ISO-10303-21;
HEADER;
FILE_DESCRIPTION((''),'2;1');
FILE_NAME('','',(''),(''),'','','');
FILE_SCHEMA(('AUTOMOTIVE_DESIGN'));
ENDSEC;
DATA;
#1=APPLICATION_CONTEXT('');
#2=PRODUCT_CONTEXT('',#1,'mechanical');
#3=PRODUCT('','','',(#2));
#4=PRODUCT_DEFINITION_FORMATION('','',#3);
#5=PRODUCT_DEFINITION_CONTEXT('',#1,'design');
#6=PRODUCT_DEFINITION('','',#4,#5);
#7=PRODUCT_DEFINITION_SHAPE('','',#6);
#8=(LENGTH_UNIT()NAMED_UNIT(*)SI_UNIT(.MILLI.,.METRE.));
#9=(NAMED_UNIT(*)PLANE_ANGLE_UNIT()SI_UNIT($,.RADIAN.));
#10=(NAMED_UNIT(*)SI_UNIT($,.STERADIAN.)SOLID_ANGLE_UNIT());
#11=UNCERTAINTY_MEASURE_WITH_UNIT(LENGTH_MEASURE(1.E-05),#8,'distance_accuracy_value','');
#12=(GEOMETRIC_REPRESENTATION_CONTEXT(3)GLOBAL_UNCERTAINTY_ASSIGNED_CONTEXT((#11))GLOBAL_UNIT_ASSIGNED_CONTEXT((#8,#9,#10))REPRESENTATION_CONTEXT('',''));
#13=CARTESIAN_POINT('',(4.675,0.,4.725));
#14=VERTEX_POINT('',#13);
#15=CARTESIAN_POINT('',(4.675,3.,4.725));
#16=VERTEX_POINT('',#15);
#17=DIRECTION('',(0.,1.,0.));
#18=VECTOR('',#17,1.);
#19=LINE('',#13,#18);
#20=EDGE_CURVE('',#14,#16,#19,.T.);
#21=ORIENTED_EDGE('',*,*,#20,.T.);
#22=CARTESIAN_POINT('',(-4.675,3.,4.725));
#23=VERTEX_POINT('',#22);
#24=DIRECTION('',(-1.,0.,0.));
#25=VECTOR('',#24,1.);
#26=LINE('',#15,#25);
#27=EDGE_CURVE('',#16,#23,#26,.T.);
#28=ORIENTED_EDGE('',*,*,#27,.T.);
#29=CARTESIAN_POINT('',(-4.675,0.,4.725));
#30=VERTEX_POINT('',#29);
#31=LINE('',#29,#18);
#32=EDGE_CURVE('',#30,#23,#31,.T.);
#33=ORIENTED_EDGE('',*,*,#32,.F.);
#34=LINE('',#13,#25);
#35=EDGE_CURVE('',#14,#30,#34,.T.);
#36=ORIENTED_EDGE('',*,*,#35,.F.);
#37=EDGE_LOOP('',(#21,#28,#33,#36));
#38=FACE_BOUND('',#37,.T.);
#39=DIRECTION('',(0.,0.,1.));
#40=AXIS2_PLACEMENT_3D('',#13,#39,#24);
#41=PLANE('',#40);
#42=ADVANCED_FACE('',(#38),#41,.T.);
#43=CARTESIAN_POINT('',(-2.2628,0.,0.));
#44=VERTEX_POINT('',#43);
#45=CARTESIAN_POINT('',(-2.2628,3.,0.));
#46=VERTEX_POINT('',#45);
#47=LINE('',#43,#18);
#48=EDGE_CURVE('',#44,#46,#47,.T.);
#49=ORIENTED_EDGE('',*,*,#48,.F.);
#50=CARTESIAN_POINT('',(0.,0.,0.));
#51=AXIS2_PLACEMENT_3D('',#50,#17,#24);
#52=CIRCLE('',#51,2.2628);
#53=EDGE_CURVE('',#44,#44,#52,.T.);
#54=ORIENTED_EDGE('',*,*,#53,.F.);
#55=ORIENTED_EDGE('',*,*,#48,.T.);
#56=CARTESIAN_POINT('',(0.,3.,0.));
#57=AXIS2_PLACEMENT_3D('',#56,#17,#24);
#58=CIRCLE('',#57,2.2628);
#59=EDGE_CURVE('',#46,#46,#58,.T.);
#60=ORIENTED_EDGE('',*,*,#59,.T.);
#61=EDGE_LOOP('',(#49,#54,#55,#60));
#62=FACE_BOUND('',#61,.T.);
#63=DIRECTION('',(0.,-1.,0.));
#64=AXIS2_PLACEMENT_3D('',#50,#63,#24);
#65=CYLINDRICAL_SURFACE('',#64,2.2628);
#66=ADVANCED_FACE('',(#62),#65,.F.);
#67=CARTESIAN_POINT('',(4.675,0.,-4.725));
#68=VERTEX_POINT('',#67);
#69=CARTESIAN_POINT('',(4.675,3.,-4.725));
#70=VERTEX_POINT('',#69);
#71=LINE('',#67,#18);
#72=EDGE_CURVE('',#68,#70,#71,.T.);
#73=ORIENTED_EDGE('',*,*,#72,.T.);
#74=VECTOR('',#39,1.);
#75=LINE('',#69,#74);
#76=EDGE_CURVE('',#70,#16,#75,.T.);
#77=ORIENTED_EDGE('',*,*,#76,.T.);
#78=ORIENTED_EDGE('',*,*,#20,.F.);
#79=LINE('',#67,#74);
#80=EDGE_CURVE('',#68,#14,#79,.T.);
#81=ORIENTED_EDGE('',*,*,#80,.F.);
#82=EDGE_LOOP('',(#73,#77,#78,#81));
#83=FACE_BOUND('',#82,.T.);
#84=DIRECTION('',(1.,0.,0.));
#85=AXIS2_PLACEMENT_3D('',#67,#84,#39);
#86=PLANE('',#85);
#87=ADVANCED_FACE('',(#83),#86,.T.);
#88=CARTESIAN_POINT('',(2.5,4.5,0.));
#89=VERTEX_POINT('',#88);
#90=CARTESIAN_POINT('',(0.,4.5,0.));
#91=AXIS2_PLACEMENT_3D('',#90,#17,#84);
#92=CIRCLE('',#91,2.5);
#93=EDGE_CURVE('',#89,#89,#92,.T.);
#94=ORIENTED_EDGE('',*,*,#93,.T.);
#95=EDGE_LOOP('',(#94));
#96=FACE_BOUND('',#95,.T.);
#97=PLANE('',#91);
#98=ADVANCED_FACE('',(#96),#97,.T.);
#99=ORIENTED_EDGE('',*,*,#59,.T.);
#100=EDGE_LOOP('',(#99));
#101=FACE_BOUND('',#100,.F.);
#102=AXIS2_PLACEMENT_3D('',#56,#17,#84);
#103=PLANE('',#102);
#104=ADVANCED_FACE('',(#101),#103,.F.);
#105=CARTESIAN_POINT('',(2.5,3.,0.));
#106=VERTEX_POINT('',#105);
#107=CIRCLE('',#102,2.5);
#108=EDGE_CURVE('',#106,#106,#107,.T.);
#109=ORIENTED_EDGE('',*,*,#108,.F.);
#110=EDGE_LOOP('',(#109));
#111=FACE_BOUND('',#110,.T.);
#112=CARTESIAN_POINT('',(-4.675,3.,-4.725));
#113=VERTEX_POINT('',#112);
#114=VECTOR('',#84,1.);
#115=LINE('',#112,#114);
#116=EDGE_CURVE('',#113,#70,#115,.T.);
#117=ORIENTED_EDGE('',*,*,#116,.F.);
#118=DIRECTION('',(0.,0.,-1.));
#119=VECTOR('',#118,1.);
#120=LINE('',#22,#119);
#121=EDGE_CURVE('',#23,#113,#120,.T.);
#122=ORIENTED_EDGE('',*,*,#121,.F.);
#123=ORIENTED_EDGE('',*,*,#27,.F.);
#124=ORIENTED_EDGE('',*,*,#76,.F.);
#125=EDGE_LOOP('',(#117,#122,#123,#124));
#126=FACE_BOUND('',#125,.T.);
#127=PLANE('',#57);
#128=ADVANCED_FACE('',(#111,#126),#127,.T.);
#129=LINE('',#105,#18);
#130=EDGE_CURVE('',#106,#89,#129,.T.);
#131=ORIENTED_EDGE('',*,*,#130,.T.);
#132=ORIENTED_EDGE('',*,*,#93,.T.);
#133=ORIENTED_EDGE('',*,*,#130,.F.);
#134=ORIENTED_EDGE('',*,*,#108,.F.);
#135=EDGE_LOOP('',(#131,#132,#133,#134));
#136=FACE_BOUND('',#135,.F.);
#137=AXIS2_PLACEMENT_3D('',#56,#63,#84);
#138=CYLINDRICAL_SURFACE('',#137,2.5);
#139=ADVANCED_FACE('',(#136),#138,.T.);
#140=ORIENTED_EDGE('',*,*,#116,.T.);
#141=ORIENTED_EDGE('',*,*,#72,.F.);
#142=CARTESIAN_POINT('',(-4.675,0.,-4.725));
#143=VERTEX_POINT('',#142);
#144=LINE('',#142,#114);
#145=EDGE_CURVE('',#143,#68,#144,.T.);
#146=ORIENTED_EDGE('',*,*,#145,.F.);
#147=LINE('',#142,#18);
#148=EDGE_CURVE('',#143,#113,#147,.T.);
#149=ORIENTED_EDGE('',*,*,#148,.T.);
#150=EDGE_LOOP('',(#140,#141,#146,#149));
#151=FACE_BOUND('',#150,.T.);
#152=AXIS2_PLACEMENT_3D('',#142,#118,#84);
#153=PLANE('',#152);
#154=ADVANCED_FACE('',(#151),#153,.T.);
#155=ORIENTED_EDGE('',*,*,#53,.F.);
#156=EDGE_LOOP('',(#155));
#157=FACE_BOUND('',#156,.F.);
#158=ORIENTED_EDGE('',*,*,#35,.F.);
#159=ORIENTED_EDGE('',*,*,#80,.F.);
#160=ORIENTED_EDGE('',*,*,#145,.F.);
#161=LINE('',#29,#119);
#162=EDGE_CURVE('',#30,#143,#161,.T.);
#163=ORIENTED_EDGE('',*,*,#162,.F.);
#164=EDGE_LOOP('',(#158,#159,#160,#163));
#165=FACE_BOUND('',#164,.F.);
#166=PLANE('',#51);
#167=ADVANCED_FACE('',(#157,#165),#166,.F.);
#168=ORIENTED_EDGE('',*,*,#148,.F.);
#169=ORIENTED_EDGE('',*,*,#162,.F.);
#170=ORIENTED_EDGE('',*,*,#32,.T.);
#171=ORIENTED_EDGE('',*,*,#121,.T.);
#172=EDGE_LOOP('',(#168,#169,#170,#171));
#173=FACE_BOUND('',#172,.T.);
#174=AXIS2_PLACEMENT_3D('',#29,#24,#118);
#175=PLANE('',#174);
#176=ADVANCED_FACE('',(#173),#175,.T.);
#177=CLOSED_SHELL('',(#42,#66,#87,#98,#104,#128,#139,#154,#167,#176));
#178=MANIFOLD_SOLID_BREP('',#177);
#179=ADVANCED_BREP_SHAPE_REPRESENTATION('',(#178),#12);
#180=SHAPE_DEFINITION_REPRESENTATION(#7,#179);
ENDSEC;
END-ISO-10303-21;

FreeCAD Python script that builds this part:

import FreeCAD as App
import Part
import Sketcher
Q = App.Units.Quantity

doc = App.newDocument("Part")
body = doc.addObject("PartDesign::Body", "Body")

# Sketch on XZ plane
sketch1 = body.newObject("Sketcher::SketchObject", "Sketch")
sketch1.AttachmentSupport = (doc.getObject("XZ_Plane"), [""])
sketch1.MapMode = "FlatFace"
sketch1.addGeometry(Part.LineSegment(App.Vector(-4.675, 4.725, 0), App.Vector(4.675, 4.725, 0)), False)
sketch1.addGeometry(Part.LineSegment(App.Vector(4.675, 4.725, 0), App.Vector(4.675, -4.725, 0)), False)
sketch1.addGeometry(Part.LineSegment(App.Vector(4.675, -4.725, 0), App.Vector(-4.675, -4.725, 0)), False)
sketch1.addGeometry(Part.LineSegment(App.Vector(-4.675, -4.725, 0), App.Vector(-4.675, 4.725, 0)), False)
sketch1.addGeometry(Part.Circle(App.Vector(0, 0, 0), App.Vector(0, 0, 1), 2.2628), False)
sketch1.addConstraint(Sketcher.Constraint("Coincident", 0, 2, 1, 1))
sketch1.addConstraint(Sketcher.Constraint("Coincident", 1, 2, 2, 1))
sketch1.addConstraint(Sketcher.Constraint("Coincident", 2, 2, 3, 1))
sketch1.addConstraint(Sketcher.Constraint("Coincident", 3, 2, 0, 1))
sketch1.addConstraint(Sketcher.Constraint("Horizontal", 0))
sketch1.addConstraint(Sketcher.Constraint("Vertical", 1))
sketch1.addConstraint(Sketcher.Constraint("Horizontal", 2))
sketch1.addConstraint(Sketcher.Constraint("Vertical", 3))
sketch1.addConstraint(Sketcher.Constraint("Coincident", 4, 3, -1, 1))
sketch1.addConstraint(Sketcher.Constraint("Symmetric", 0, 2, 2, 2, -1, 1))
sketch1.addConstraint(Sketcher.Constraint("DistanceX", 0, 1, 0, 2, Q("9.35 mm")))
sketch1.addConstraint(Sketcher.Constraint("DistanceY", 1, 2, 1, 1, Q("9.45 mm")))
sketch1.addConstraint(Sketcher.Constraint("Diameter", 4, Q("4.5256 mm")))
pad1 = body.newObject("PartDesign::Pad", "Pad")
pad1.Profile = sketch1
pad1.Length = 3
pad1.Reversed = True

# Sketch on XZ plane
sketch2 = body.newObject("Sketcher::SketchObject", "Sketch001")
sketch2.AttachmentSupport = (doc.getObject("XZ_Plane"), [""])
sketch2.MapMode = "FlatFace"
sketch2.AttachmentOffset = App.Placement(App.Vector(0, 0, -3), App.Rotation())
sketch2.addGeometry(Part.Circle(App.Vector(0, 0, 0), App.Vector(0, 0, 1), 2.5), False)
sketch2.addConstraint(Sketcher.Constraint("Coincident", 0, 3, -1, 1))
sketch2.addConstraint(Sketcher.Constraint("Diameter", 0, Q("5 mm")))
pad2 = body.newObject("PartDesign::Pad", "Pad001")
pad2.Profile = sketch2
pad2.Length = 1.5
pad2.Reversed = True

doc.recompute()
